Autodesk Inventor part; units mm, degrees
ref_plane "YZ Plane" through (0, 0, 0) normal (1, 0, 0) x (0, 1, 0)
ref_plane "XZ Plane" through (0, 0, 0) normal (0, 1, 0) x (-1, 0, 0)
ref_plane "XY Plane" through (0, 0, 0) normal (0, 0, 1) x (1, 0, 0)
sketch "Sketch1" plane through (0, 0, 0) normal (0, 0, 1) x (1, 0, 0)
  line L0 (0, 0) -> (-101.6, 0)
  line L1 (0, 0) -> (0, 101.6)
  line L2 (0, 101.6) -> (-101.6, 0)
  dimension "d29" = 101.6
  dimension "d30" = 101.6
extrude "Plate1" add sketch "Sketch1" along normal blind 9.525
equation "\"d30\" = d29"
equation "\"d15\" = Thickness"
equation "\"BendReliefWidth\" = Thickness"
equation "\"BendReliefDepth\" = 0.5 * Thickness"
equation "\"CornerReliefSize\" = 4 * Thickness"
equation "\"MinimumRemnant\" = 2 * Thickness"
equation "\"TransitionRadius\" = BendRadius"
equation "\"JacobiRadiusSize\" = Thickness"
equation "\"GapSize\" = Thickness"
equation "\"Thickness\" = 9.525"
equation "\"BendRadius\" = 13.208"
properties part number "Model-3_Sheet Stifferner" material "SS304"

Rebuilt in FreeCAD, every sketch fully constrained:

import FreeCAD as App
import Part
import Sketcher
from FreeCAD import Vector
Q = App.Units.Quantity

doc = App.newDocument("Part")
body = doc.addObject("PartDesign::Body", "Body")

# Sketch on XY plane
sketch1 = body.newObject("Sketcher::SketchObject", "Sketch")
sketch1.AttachmentSupport = (doc.getObject("XY_Plane"), [""])
sketch1.MapMode = "FlatFace"
sketch1.addGeometry([
    Part.LineSegment(Vector(-101.6, 0, 0), Vector(0, 0, 0)),
    Part.LineSegment(Vector(0, 0, 0), Vector(0, 101.6, 0)),
    Part.LineSegment(Vector(0, 101.6, 0), Vector(-101.6, 0, 0)),
], False)
sketch1.addConstraint([
    Sketcher.Constraint("Coincident", 0, 2, 1, 1),
    Sketcher.Constraint("Coincident", 1, 2, 2, 1),
    Sketcher.Constraint("Coincident", 2, 2, 0, 1),
    Sketcher.Constraint("Horizontal", 0),
    Sketcher.Constraint("Vertical", 1),
    Sketcher.Constraint("Coincident", 0, 2, -1, 1),
    Sketcher.Constraint("Equal", 0, 1),
    Sketcher.Constraint("DistanceX", 0, 1, 0, 2, Q("4 in")),
])
pad1 = body.newObject("PartDesign::Pad", "Pad")
pad1.Profile = sketch1
pad1.Length = Q("0.375 in")

doc.recompute()
